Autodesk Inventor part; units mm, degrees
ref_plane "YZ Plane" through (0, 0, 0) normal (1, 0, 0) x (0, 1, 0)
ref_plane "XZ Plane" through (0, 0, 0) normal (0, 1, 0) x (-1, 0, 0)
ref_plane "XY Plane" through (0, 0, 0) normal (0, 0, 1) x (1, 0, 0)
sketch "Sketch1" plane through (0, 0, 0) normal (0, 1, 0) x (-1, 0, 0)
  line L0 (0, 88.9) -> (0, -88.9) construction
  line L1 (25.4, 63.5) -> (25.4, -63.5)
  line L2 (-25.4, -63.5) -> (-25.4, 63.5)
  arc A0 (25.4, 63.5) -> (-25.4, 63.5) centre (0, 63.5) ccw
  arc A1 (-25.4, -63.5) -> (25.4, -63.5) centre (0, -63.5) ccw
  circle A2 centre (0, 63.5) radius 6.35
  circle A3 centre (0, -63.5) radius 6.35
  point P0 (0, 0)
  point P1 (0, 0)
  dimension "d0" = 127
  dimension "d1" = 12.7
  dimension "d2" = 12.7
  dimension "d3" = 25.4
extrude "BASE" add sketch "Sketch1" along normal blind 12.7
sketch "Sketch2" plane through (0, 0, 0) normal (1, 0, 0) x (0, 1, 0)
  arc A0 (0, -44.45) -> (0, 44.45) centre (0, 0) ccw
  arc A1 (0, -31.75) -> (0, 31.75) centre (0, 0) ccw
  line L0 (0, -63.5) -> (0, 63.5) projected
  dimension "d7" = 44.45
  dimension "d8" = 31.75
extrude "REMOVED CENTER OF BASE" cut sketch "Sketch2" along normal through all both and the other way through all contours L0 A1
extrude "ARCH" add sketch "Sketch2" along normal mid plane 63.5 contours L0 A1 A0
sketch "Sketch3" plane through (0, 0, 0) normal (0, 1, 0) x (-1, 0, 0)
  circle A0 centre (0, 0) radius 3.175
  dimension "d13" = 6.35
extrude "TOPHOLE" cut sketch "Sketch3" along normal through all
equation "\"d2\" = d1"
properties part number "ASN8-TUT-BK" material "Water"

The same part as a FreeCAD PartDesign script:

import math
import FreeCAD as App
import Part
import Sketcher
from FreeCAD import Vector
Q = App.Units.Quantity

doc = App.newDocument("Part")
body = doc.addObject("PartDesign::Body", "Body")
body.AllowCompound = True

# Sketch on XZ plane
sketch1 = body.newObject("Sketcher::SketchObject", "Sketch")
sketch1.AttachmentSupport = (doc.getObject("XZ_Plane"), [""])
sketch1.MapMode = "FlatFace"
sketch1.addGeometry([
    Part.LineSegment(Vector(-25, -64, 0), Vector(-25, 64, 0)),  # 0
    Part.ArcOfCircle(Part.Circle(Vector(0, 64, 0), Vector(0, 0, 1), 25), math.radians(0), math.radians(180)),  # 1
    Part.LineSegment(Vector(25, 64, 0), Vector(25, -64, 0)),  # 2
    Part.ArcOfCircle(Part.Circle(Vector(0, -64, 0), Vector(0, 0, 1), 25), math.radians(180), math.radians(360)),  # 3
    Part.Circle(Vector(0, -64, 0), Vector(0, 0, 1), 6),  # 4
    Part.Circle(Vector(0, 64, 0), Vector(0, 0, 1), 6),  # 5
], False)
sketch1.addConstraint([
    Sketcher.Constraint("Tangent", 0, 2, 1, 2),
    Sketcher.Constraint("Tangent", 1, 1, 2, 1),
    Sketcher.Constraint("Tangent", 2, 2, 3, 2),
    Sketcher.Constraint("Tangent", 3, 1, 0, 1),
    Sketcher.Constraint("Vertical", 0),
    Sketcher.Constraint("Vertical", 2),
    Sketcher.Constraint("Coincident", 4, 3, 3, 3),
    Sketcher.Constraint("Coincident", 5, 3, 1, 3),
    Sketcher.Constraint("Equal", 4, 5),
    Sketcher.Constraint("Symmetric", 1, 3, 3, 3, -1, 1),
    Sketcher.Constraint("Radius", 1, Q("1 in")),
    Sketcher.Constraint("Diameter", 4, Q("0.5 in")),
    Sketcher.Constraint("DistanceY", 0, 1, 0, 2, Q("5 in")),
])
pad1 = body.newObject("PartDesign::Pad", "Pad")
pad1.Profile = sketch1
pad1.Length = Q("0.5 in")
pad1.Reversed = True

# Sketch on YZ plane
sketch2 = body.newObject("Sketcher::SketchObject", "Sketch001")
sketch2.AttachmentSupport = (doc.getObject("YZ_Plane"), [""])
sketch2.MapMode = "FlatFace"
sketch2.addGeometry([
    Part.LineSegment(Vector(0, 32, 0), Vector(0, -32, 0)),
    Part.ArcOfCircle(Part.Circle(Vector(0, 0, 0), Vector(0, 0, 1), 32), math.radians(-90), math.radians(90)),
], False)
sketch2.addConstraint([
    Sketcher.Constraint("Coincident", 0, 1, 1, 2),
    Sketcher.Constraint("Coincident", 1, 1, 0, 2),
    Sketcher.Constraint("Vertical", 0),
    Sketcher.Constraint("Coincident", 1, 3, -1, 1),
    Sketcher.Constraint("PointOnObject", 0, 1, -2),
    Sketcher.Constraint("Radius", 1, Q("1.25 in")),
])
pocket1 = body.newObject("PartDesign::Pocket", "Pocket")
pocket1.Profile = sketch2
pocket1.Type = "ThroughAll"
pocket1.Midplane = True

# Sketch on YZ plane
sketch3 = body.newObject("Sketcher::SketchObject", "Sketch002")
sketch3.AttachmentSupport = (doc.getObject("YZ_Plane"), [""])
sketch3.MapMode = "FlatFace"
sketch3.addGeometry([
    Part.LineSegment(Vector(0, -32, 0), Vector(0, -44, 0)),
    Part.ArcOfCircle(Part.Circle(Vector(0, 0, 0), Vector(0, 0, 1), 44), math.radians(-90), math.radians(90)),
    Part.LineSegment(Vector(0, 44, 0), Vector(0, 32, 0)),
    Part.ArcOfCircle(Part.Circle(Vector(0, 0, 0), Vector(0, 0, 1), 32), math.radians(-90), math.radians(90)),
], False)
sketch3.addConstraint([
    Sketcher.Constraint("Coincident", 0, 2, 1, 1),
    Sketcher.Constraint("Coincident", 1, 2, 2, 1),
    Sketcher.Constraint("Coincident", 2, 2, 3, 2),
    Sketcher.Constraint("Coincident", 3, 1, 0, 1),
    Sketcher.Constraint("Vertical", 0),
    Sketcher.Constraint("Vertical", 2),
    Sketcher.Constraint("Coincident", 1, 3, -1, 1),
    Sketcher.Constraint("Coincident", 3, 3, -1, 1),
    Sketcher.Constraint("PointOnObject", 0, 2, -2),
    Sketcher.Constraint("PointOnObject", 1, 2, -2),
    Sketcher.Constraint("Radius", 1, Q("1.75 in")),
    Sketcher.Constraint("Radius", 3, Q("1.25 in")),
])
pad2 = body.newObject("PartDesign::Pad", "Pad001")
pad2.Profile = sketch3
pad2.Length = Q("2.5 in")
pad2.Midplane = True

# Sketch on XZ plane
sketch4 = body.newObject("Sketcher::SketchObject", "Sketch003")
sketch4.AttachmentSupport = (doc.getObject("XZ_Plane"), [""])
sketch4.MapMode = "FlatFace"
sketch4.addGeometry(Part.Circle(Vector(0, 0, 0), Vector(0, 0, 1), 3.2), False)
sketch4.addConstraint([
    Sketcher.Constraint("Coincident", 0, 3, -1, 1),
    Sketcher.Constraint("Diameter", 0, Q("0.25 in")),
])
pocket2 = body.newObject("PartDesign::Pocket", "Pocket001")
pocket2.Profile = sketch4
pocket2.Type = "ThroughAll"

doc.recompute()
